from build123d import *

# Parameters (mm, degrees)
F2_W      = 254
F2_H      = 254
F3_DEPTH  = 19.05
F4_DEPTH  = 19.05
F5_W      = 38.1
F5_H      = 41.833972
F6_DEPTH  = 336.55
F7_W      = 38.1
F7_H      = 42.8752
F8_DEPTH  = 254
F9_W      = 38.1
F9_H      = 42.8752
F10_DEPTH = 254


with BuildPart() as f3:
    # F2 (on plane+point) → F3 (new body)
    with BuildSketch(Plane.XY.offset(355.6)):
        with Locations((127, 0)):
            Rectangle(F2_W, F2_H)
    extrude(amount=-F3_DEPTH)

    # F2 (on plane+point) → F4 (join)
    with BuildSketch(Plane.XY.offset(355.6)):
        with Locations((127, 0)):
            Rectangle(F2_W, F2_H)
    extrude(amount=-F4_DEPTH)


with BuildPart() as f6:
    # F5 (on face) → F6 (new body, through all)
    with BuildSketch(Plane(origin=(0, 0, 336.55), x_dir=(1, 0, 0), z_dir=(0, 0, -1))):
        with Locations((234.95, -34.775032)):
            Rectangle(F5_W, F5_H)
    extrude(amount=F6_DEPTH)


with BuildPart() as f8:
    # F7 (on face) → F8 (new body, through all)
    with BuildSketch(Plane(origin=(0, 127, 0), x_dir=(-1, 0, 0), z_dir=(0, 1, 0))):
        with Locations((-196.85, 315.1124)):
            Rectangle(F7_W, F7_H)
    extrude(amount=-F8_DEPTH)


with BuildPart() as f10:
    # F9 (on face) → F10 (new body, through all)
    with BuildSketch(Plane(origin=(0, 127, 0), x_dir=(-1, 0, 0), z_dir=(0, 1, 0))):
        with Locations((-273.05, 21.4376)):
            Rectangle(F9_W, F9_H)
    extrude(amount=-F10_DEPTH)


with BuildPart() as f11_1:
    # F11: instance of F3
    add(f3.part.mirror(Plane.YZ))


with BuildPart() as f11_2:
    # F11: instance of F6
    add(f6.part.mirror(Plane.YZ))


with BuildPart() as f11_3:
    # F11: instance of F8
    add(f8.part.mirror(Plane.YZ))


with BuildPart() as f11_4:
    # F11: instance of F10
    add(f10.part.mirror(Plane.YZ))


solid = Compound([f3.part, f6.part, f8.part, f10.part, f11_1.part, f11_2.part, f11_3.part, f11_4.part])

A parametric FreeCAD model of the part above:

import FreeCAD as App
import Part
import Sketcher
from FreeCAD import Vector
Q = App.Units.Quantity

doc = App.newDocument("Part")
body = doc.addObject("PartDesign::Body", "Body")

sketch1 = doc.addObject("Sketcher::SketchObject", "Sketch")
body.addObject(sketch1)
sketch1.AttachmentSupport = (doc.XY_Plane, [""])
sketch1.MapMode = "FlatFace"
sketch1.AttachmentOffset = App.Placement(Vector(0, 0, 14 * 25.4), App.Rotation())
sketch1.addGeometry([
    Part.LineSegment(Vector(0, 127, 0), Vector(0, -127, 0)),
    Part.LineSegment(Vector(0, -127, 0), Vector(254, -127, 0)),
    Part.LineSegment(Vector(254, -127, 0), Vector(254, 127, 0)),
    Part.LineSegment(Vector(254, 127, 0), Vector(0, 127, 0)),
], False)
sketch1.addConstraint([
    Sketcher.Constraint("Coincident", 0, 2, 1, 1),
    Sketcher.Constraint("Coincident", 1, 2, 2, 1),
    Sketcher.Constraint("Coincident", 2, 2, 3, 1),
    Sketcher.Constraint("Coincident", 3, 2, 0, 1),
    Sketcher.Constraint("Vertical", 0),
    Sketcher.Constraint("Horizontal", 1),
    Sketcher.Constraint("Vertical", 2),
    Sketcher.Constraint("Horizontal", 3),
    Sketcher.Constraint("Symmetric", 0, 2, 3, 2, -1, 1),
    Sketcher.Constraint("Equal", 3, 0),
    Sketcher.Constraint("DistanceX", 1, 1, 1, 2, Q("10 in")),
])
pad1 = doc.addObject("PartDesign::Pad", "Pad")
body.addObject(pad1)
pad1.Profile = sketch1
pad1.Length = Q("0.75 in")
pad1.Reversed = True

sketch2 = doc.addObject("Sketcher::SketchObject", "Sketch001")
body.addObject(sketch2)
sketch2.AttachmentSupport = (doc.XY_Plane, [""])
sketch2.MapMode = "FlatFace"
sketch2.AttachmentOffset = App.Placement(Vector(0, 0, 14 * 25.4), App.Rotation())
sketch2.addGeometry([
    Part.LineSegment(Vector(0, 127, 0), Vector(0, -127, 0)),
    Part.LineSegment(Vector(0, -127, 0), Vector(254, -127, 0)),
    Part.LineSegment(Vector(254, -127, 0), Vector(254, 127, 0)),
    Part.LineSegment(Vector(254, 127, 0), Vector(0, 127, 0)),
], False)
sketch2.addConstraint([
    Sketcher.Constraint("Coincident", 0, 2, 1, 1),
    Sketcher.Constraint("Coincident", 1, 2, 2, 1),
    Sketcher.Constraint("Coincident", 2, 2, 3, 1),
    Sketcher.Constraint("Coincident", 3, 2, 0, 1),
    Sketcher.Constraint("Vertical", 0),
    Sketcher.Constraint("Horizontal", 1),
    Sketcher.Constraint("Vertical", 2),
    Sketcher.Constraint("Horizontal", 3),
    Sketcher.Constraint("Symmetric", 0, 2, 3, 2, -1, 1),
    Sketcher.Constraint("Equal", 3, 0),
    Sketcher.Constraint("DistanceX", 1, 1, 1, 2, Q("10 in")),
])
pad2 = doc.addObject("PartDesign::Pad", "Pad001")
body.addObject(pad2)
pad2.Profile = sketch2
pad2.Length = Q("0.75 in")
pad2.Reversed = True
body2 = doc.addObject("PartDesign::Body", "Body001")

sketch3 = doc.addObject("Sketcher::SketchObject", "Sketch002")
body2.addObject(sketch3)
sketch3.AttachmentSupport = (doc.getObject("XY_Plane001"), [""])
sketch3.MapMode = "FlatFace"
sketch3.AttachmentOffset = App.Placement(Vector(0, 0, 13.25 * 25.4), App.Rotation())
sketch3.addGeometry([
    Part.LineSegment(Vector(216, 14, 0), Vector(216, 56, 0)),
    Part.LineSegment(Vector(216, 56, 0), Vector(254, 56, 0)),
    Part.LineSegment(Vector(254, 56, 0), Vector(254, 14, 0)),
    Part.LineSegment(Vector(254, 14, 0), Vector(216, 14, 0)),
], False)
sketch3.addConstraint([
    Sketcher.Constraint("Coincident", 0, 2, 1, 1),
    Sketcher.Constraint("Coincident", 1, 2, 2, 1),
    Sketcher.Constraint("Coincident", 2, 2, 3, 1),
    Sketcher.Constraint("Coincident", 3, 2, 0, 1),
    Sketcher.Constraint("Vertical", 0),
    Sketcher.Constraint("Horizontal", 1),
    Sketcher.Constraint("Vertical", 2),
    Sketcher.Constraint("Horizontal", 3),
    Sketcher.Constraint("DistanceX", 1, 1, 1, 2, Q("1.5 in")),
    Sketcher.Constraint("DistanceX", -1, 1, 1, 2, Q("10 in")),
    Sketcher.Constraint("DistanceY", 0, 1, 0, 2, Q("41.833972 mm")),
    Sketcher.Constraint("DistanceY", -1, 1, 0, 2, Q("55.692018 mm")),
])
pad3 = doc.addObject("PartDesign::Pad", "Pad002")
body2.addObject(pad3)
pad3.Profile = sketch3
pad3.Length = Q("13.25 in")
pad3.Reversed = True
body3 = doc.addObject("PartDesign::Body", "Body002")

sketch4 = doc.addObject("Sketcher::SketchObject", "Sketch003")
body3.addObject(sketch4)
sketch4.AttachmentSupport = (doc.getObject("XZ_Plane002"), [""])
sketch4.MapMode = "FlatFace"
sketch4.AttachmentOffset = App.Placement(Vector(0, 0, -5 * 25.4), App.Rotation())
sketch4.addGeometry([
    Part.LineSegment(Vector(216, 337, 0), Vector(216, 294, 0)),
    Part.LineSegment(Vector(216, 294, 0), Vector(178, 294, 0)),
    Part.LineSegment(Vector(178, 294, 0), Vector(178, 337, 0)),
    Part.LineSegment(Vector(178, 337, 0), Vector(216, 337, 0)),
], False)
sketch4.addConstraint([
    Sketcher.Constraint("Coincident", 0, 2, 1, 1),
    Sketcher.Constraint("Coincident", 1, 2, 2, 1),
    Sketcher.Constraint("Coincident", 2, 2, 3, 1),
    Sketcher.Constraint("Coincident", 3, 2, 0, 1),
    Sketcher.Constraint("Vertical", 0),
    Sketcher.Constraint("Horizontal", 1),
    Sketcher.Constraint("Vertical", 2),
    Sketcher.Constraint("Horizontal", 3),
    Sketcher.Constraint("DistanceX", 1, 2, 1, 1, Q("1.5 in")),
    Sketcher.Constraint("DistanceX", -1, 1, 1, 2, Q("7 in")),
    Sketcher.Constraint("DistanceY", 0, 2, 0, 1, Q("1.688 in")),
    Sketcher.Constraint("DistanceY", -1, 1, 2, 2, Q("13.25 in")),
])
pad4 = doc.addObject("PartDesign::Pad", "Pad003")
body3.addObject(pad4)
pad4.Profile = sketch4
pad4.Length = Q("10 in")
body4 = doc.addObject("PartDesign::Body", "Body003")

sketch5 = doc.addObject("Sketcher::SketchObject", "Sketch004")
body4.addObject(sketch5)
sketch5.AttachmentSupport = (doc.getObject("XZ_Plane003"), [""])
sketch5.MapMode = "FlatFace"
sketch5.AttachmentOffset = App.Placement(Vector(0, 0, -5 * 25.4), App.Rotation())
sketch5.addGeometry([
    Part.LineSegment(Vector(292, 43, 0), Vector(292, 0, 0)),
    Part.LineSegment(Vector(292, 0, 0), Vector(254, 0, 0)),
    Part.LineSegment(Vector(254, 0, 0), Vector(254, 43, 0)),
    Part.LineSegment(Vector(254, 43, 0), Vector(292, 43, 0)),
], False)
sketch5.addConstraint([
    Sketcher.Constraint("Coincident", 0, 2, 1, 1),
    Sketcher.Constraint("Coincident", 1, 2, 2, 1),
    Sketcher.Constraint("Coincident", 2, 2, 3, 1),
    Sketcher.Constraint("Coincident", 3, 2, 0, 1),
    Sketcher.Constraint("Vertical", 0),
    Sketcher.Constraint("Horizontal", 1),
    Sketcher.Constraint("Vertical", 2),
    Sketcher.Constraint("Horizontal", 3),
    Sketcher.Constraint("PointOnObject", 0, 2, -1),
    Sketcher.Constraint("DistanceX", 1, 2, 1, 1, Q("1.5 in")),
    Sketcher.Constraint("DistanceX", -1, 1, 1, 2, Q("10 in")),
    Sketcher.Constraint("DistanceY", 0, 2, 0, 1, Q("1.688 in")),
])
pad5 = doc.addObject("PartDesign::Pad", "Pad004")
body4.addObject(pad5)
pad5.Profile = sketch5
pad5.Length = Q("10 in")
body5 = doc.addObject("PartDesign::Body", "Body004")
doc.recompute()

mirroring = doc.addObject("Part::Mirroring", "Mirroring")
mirroring.Source = body
mirroring.Base = Vector(0, 0, 0)
mirroring.Normal = Vector(1, 0, 0)
body5.BaseFeature = mirroring
doc.recompute()
body6 = doc.addObject("PartDesign::Body", "Body005")
doc.recompute()

mirroring2 = doc.addObject("Part::Mirroring", "Mirroring001")
mirroring2.Source = body2
mirroring2.Base = Vector(0, 0, 0)
mirroring2.Normal = Vector(1, 0, 0)
body6.BaseFeature = mirroring2
doc.recompute()
body7 = doc.addObject("PartDesign::Body", "Body006")
doc.recompute()

mirroring3 = doc.addObject("Part::Mirroring", "Mirroring002")
mirroring3.Source = body3
mirroring3.Base = Vector(0, 0, 0)
mirroring3.Normal = Vector(1, 0, 0)
body7.BaseFeature = mirroring3
doc.recompute()
body8 = doc.addObject("PartDesign::Body", "Body007")
doc.recompute()

mirroring4 = doc.addObject("Part::Mirroring", "Mirroring003")
mirroring4.Source = body4
mirroring4.Base = Vector(0, 0, 0)
mirroring4.Normal = Vector(1, 0, 0)
body8.BaseFeature = mirroring4
doc.recompute()
mirroring.Visibility = False
mirroring2.Visibility = False
mirroring3.Visibility = False
mirroring4.Visibility = False

doc.recompute()
